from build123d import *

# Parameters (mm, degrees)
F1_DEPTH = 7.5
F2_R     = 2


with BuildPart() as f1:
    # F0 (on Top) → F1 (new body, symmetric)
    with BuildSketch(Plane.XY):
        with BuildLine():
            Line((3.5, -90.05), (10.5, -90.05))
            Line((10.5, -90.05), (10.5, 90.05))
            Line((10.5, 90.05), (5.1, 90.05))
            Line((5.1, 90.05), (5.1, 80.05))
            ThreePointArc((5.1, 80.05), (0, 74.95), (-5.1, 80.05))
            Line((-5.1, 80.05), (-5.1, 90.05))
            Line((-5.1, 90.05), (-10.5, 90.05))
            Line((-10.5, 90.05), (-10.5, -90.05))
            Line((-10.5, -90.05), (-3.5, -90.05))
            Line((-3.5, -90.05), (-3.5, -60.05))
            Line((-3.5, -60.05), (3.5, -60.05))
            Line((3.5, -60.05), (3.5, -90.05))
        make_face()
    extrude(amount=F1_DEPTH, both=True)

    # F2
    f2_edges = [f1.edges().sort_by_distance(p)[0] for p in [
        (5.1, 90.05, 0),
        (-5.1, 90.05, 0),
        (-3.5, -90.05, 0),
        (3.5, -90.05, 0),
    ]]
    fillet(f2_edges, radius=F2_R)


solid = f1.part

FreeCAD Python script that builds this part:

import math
import FreeCAD as App
import Part
import Sketcher
from FreeCAD import Vector


def edges_at(feature, points):
    """Names of the edges that pass closest to the given points."""
    edges = feature.Shape.Edges
    near = lambda p: min(range(len(edges)), key=lambda i: edges[i].distToShape(Part.Vertex(*p))[0])
    return sorted({f"Edge{near(p) + 1}" for p in points})

doc = App.newDocument("Part")
body = doc.addObject("PartDesign::Body", "Body")

sketch1 = body.newObject("Sketcher::SketchObject", "Sketch")
sketch1.AttachmentSupport = (doc.getObject("XY_Plane"), [""])
sketch1.MapMode = "FlatFace"
sketch1.addGeometry(Part.LineSegment(Vector(3.5, -90.05, 0), Vector(10.5, -90.05, 0)), False)
sketch1.addGeometry(Part.LineSegment(Vector(10.5, -90.05, 0), Vector(10.5, 90.05, 0)), False)
sketch1.addGeometry(Part.LineSegment(Vector(10.5, 90.05, 0), Vector(5.1, 90.05, 0)), False)
sketch1.addGeometry(Part.LineSegment(Vector(5.1, 90.05, 0), Vector(5.1, 80.05, 0)), False)
sketch1.addGeometry(Part.ArcOfCircle(Part.Circle(Vector(0, 80.05, 0), Vector(0, 0, 1), 5.1), math.radians(180), math.radians(360)), False)
sketch1.addGeometry(Part.LineSegment(Vector(-5.1, 80.05, 0), Vector(-5.1, 90.05, 0)), False)
sketch1.addGeometry(Part.LineSegment(Vector(-5.1, 90.05, 0), Vector(-10.5, 90.05, 0)), False)
sketch1.addGeometry(Part.LineSegment(Vector(-10.5, 90.05, 0), Vector(-10.5, -90.05, 0)), False)
sketch1.addGeometry(Part.LineSegment(Vector(-10.5, -90.05, 0), Vector(-3.5, -90.05, 0)), False)
sketch1.addGeometry(Part.LineSegment(Vector(-3.5, -90.05, 0), Vector(-3.5, -60.05, 0)), False)
sketch1.addGeometry(Part.LineSegment(Vector(-3.5, -60.05, 0), Vector(3.5, -60.05, 0)), False)
sketch1.addGeometry(Part.LineSegment(Vector(3.5, -60.05, 0), Vector(3.5, -90.05, 0)), False)
sketch1.addConstraint(Sketcher.Constraint("Coincident", 0, 2, 1, 1))
sketch1.addConstraint(Sketcher.Constraint("Coincident", 1, 2, 2, 1))
sketch1.addConstraint(Sketcher.Constraint("Coincident", 2, 2, 3, 1))
sketch1.addConstraint(Sketcher.Constraint("Tangent", 3, 2, 4, 2))
sketch1.addConstraint(Sketcher.Constraint("Tangent", 4, 1, 5, 1))
sketch1.addConstraint(Sketcher.Constraint("Coincident", 5, 2, 6, 1))
sketch1.addConstraint(Sketcher.Constraint("Coincident", 6, 2, 7, 1))
sketch1.addConstraint(Sketcher.Constraint("Coincident", 7, 2, 8, 1))
sketch1.addConstraint(Sketcher.Constraint("Coincident", 8, 2, 9, 1))
sketch1.addConstraint(Sketcher.Constraint("Coincident", 9, 2, 10, 1))
sketch1.addConstraint(Sketcher.Constraint("Coincident", 10, 2, 11, 1))
sketch1.addConstraint(Sketcher.Constraint("Coincident", 11, 2, 0, 1))
sketch1.addConstraint(Sketcher.Constraint("Horizontal", 0))
sketch1.addConstraint(Sketcher.Constraint("Vertical", 1))
sketch1.addConstraint(Sketcher.Constraint("Horizontal", 2))
sketch1.addConstraint(Sketcher.Constraint("Vertical", 3))
sketch1.addConstraint(Sketcher.Constraint("Vertical", 5))
sketch1.addConstraint(Sketcher.Constraint("Horizontal", 6))
sketch1.addConstraint(Sketcher.Constraint("Vertical", 7))
sketch1.addConstraint(Sketcher.Constraint("Horizontal", 8))
sketch1.addConstraint(Sketcher.Constraint("Vertical", 9))
sketch1.addConstraint(Sketcher.Constraint("Horizontal", 10))
sketch1.addConstraint(Sketcher.Constraint("Vertical", 11))
sketch1.addConstraint(Sketcher.Constraint("Symmetric", 0, 2, 6, 2, -1, 1))
sketch1.addConstraint(Sketcher.Constraint("Symmetric", 2, 2, 5, 2, -2))
sketch1.addConstraint(Sketcher.Constraint("Symmetric", 8, 2, 11, 2, -2))
sketch1.addConstraint(Sketcher.Constraint("Equal", 8, 10))
sketch1.addConstraint(Sketcher.Constraint("Radius", 4, 5.1))
sketch1.addConstraint(Sketcher.Constraint("DistanceX", 0, 1, 0, 2, 7.0))
sketch1.addConstraint(Sketcher.Constraint("DistanceY", 3, 2, 3, 1, 10.0))
sketch1.addConstraint(Sketcher.Constraint("DistanceY", 9, 1, 9, 2, 30.0))
sketch1.addConstraint(Sketcher.Constraint("DistanceY", 1, 1, 1, 2, 180.1))
pad1 = body.newObject("PartDesign::Pad", "Pad")
pad1.Profile = sketch1
pad1.Length = 15
pad1.Midplane = True
doc.recompute()

fillet = body.newObject("PartDesign::Fillet", "Fillet")
fillet.Base = (pad1, edges_at(pad1, [
    (5.1, 90.05, 0),
    (-5.1, 90.05, 0),
    (-3.5, -90.05, 0),
    (3.5, -90.05, 0),
]))
fillet.Radius = 2

doc.recompute()
